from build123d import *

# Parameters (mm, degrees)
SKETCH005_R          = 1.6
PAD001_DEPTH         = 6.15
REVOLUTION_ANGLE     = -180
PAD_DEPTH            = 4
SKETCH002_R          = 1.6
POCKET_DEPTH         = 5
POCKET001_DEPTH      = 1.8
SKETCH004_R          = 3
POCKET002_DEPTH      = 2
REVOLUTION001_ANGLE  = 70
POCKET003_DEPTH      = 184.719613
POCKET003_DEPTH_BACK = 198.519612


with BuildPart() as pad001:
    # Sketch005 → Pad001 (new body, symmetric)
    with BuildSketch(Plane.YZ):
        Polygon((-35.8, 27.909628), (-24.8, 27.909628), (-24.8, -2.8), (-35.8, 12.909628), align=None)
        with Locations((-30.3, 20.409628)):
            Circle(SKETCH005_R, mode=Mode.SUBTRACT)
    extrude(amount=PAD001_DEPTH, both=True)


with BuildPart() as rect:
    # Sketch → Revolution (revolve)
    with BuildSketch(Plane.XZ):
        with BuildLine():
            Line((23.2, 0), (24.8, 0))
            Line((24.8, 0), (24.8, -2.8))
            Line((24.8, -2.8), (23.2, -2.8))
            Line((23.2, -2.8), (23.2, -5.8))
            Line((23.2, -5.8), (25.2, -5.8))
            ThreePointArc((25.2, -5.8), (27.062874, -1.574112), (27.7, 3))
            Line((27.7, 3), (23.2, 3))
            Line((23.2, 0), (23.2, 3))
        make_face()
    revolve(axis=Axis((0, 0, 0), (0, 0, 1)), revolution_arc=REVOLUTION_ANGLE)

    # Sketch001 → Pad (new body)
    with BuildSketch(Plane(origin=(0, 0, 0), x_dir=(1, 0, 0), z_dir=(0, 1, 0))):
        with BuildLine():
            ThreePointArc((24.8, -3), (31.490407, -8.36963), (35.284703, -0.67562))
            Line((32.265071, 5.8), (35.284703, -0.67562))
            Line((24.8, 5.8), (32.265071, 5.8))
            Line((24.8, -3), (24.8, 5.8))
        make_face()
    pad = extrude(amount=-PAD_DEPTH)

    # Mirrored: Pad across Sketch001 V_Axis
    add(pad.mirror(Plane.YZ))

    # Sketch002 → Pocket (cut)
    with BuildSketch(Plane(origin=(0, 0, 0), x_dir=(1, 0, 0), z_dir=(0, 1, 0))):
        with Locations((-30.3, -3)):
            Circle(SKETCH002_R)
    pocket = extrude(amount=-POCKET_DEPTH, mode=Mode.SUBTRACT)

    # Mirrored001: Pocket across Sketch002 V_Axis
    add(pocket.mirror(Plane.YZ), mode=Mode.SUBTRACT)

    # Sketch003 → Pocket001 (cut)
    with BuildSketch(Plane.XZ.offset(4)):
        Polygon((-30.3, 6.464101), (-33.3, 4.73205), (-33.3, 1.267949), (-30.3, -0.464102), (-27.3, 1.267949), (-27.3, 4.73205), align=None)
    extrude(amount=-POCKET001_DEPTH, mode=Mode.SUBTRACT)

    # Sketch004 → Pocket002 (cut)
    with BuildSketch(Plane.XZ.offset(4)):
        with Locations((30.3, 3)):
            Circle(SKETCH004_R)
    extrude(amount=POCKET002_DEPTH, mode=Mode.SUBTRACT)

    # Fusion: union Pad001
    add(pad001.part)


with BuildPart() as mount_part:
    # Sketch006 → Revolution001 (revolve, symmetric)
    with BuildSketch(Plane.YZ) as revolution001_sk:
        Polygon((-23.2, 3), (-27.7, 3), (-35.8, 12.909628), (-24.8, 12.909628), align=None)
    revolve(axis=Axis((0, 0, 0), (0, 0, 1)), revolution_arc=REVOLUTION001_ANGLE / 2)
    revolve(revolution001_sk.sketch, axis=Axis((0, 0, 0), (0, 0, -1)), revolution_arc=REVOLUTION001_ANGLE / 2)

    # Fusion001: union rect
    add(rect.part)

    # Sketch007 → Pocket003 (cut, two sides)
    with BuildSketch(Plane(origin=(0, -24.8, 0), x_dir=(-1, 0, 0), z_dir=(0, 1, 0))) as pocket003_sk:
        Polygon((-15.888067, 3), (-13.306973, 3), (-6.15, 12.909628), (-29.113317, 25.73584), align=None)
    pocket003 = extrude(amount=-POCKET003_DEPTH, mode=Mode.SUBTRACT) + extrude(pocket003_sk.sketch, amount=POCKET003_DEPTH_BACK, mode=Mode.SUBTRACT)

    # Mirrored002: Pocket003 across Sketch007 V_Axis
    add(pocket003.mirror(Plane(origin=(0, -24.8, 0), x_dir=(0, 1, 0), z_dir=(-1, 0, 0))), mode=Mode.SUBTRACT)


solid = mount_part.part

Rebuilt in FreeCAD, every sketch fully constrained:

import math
import FreeCAD as App
import Part
import Sketcher
from FreeCAD import Vector
Q = App.Units.Quantity

doc = App.newDocument("Part")
body = doc.addObject("PartDesign::Body", "Body")

sketch1 = body.newObject("Sketcher::SketchObject", "Sketch")
sketch1.AttachmentSupport = (doc.getObject("YZ_Plane"), [""])
sketch1.MapMode = "FlatFace"
sketch1.addGeometry([
    Part.LineSegment(Vector(-24.8, 27.9, 0), Vector(-35.8, 27.9, 0)),
    Part.LineSegment(Vector(-35.8, 27.9, 0), Vector(-35.8, 12.9, 0)),
    Part.LineSegment(Vector(-35.8, 12.9, 0), Vector(-24.8, -2.8, 0)),
    Part.LineSegment(Vector(-24.8, -2.8, 0), Vector(-24.8, 27.9, 0)),
    Part.Circle(Vector(-30.3, 20.4, 0), Vector(0, 0, 1), 1.6),
], False)
sketch1.addConstraint([
    Sketcher.Constraint("Coincident", 0, 2, 1, 1),
    Sketcher.Constraint("Coincident", 1, 2, 2, 1),
    Sketcher.Constraint("Coincident", 2, 2, 3, 1),
    Sketcher.Constraint("Coincident", 3, 2, 0, 1),
    Sketcher.Constraint("Horizontal", 0),
    Sketcher.Constraint("Vertical", 1),
    Sketcher.Constraint("Vertical", 3),
    Sketcher.Constraint("Diameter", 4, 3.2),
    Sketcher.Constraint("DistanceX", 0, 2, 0, 1, 11.0),
    Sketcher.Constraint("DistanceY", 1, 2, 1, 1, 15.0),
    Sketcher.Constraint("Angle", 2, Q("-55 deg")),
    Sketcher.Constraint("DistanceX", 4, 3, -1, 1, 30.3),
    Sketcher.Constraint("DistanceX", 0, 2, -1, 1, 35.8),
    Sketcher.Constraint("DistanceY", 2, 2, -1, 1, 2.8),
    Sketcher.Constraint("DistanceY", 4, 3, 0, 2, 7.5),
])
pad1 = body.newObject("PartDesign::Pad", "Pad")
pad1.Profile = sketch1
pad1.Length = 12.3
pad1.Midplane = True
body2 = doc.addObject("PartDesign::Body", "Body001")

sketch2 = body2.newObject("Sketcher::SketchObject", "Sketch001")
sketch2.AttachmentSupport = (doc.getObject("XZ_Plane001"), [""])
sketch2.MapMode = "FlatFace"
sketch2.addGeometry([
    Part.LineSegment(Vector(23.2, 0, 0), Vector(24.8, 0, 0)),
    Part.LineSegment(Vector(24.8, 0, 0), Vector(24.8, -2.8, 0)),
    Part.LineSegment(Vector(24.8, -2.8, 0), Vector(23.2, -2.8, 0)),
    Part.LineSegment(Vector(23.2, -2.8, 0), Vector(23.2, -5.8, 0)),
    Part.LineSegment(Vector(23.2, -5.8, 0), Vector(25.2, -5.8, 0)),
    Part.ArcOfCircle(Part.Circle(Vector(11, 3, 0), Vector(0, 0, 1), 16.7), math.radians(-32), math.radians(0)),
    Part.LineSegment(Vector(27.7, 3, 0), Vector(23.2, 3, 0)),
    Part.LineSegment(Vector(23.2, 3, 0), Vector(23.2, 0, 0)),
], False)
sketch2.addConstraint([
    Sketcher.Constraint("Coincident", 0, 2, 1, 1),
    Sketcher.Constraint("Coincident", 1, 2, 2, 1),
    Sketcher.Constraint("Coincident", 2, 2, 3, 1),
    Sketcher.Constraint("Coincident", 3, 2, 4, 1),
    Sketcher.Constraint("Coincident", 4, 2, 5, 1),
    Sketcher.Constraint("Coincident", 5, 2, 6, 1),
    Sketcher.Constraint("Coincident", 6, 2, 7, 1),
    Sketcher.Constraint("Coincident", 7, 2, 0, 1),
    Sketcher.Constraint("Horizontal", 0),
    Sketcher.Constraint("Vertical", 1),
    Sketcher.Constraint("Horizontal", 2),
    Sketcher.Constraint("Vertical", 3),
    Sketcher.Constraint("Horizontal", 4),
    Sketcher.Constraint("Horizontal", 6),
    Sketcher.Constraint("Vertical", 7),
    Sketcher.Constraint("PointOnObject", 0, 2, -1),
    Sketcher.Constraint("Vertical", 3, 2, 6, 2),
    Sketcher.Constraint("Equal", 3, 7),
    Sketcher.Constraint("DistanceX", 4, 1, 4, 2, 2.0),
    Sketcher.Constraint("DistanceY", 3, 2, 3, 1, 3.0),
    Sketcher.Constraint("DistanceX", 0, 1, 0, 2, 1.6),
    Sketcher.Constraint("DistanceX", 6, 2, 6, 1, 4.5),
    Sketcher.Constraint("DistanceY", 1, 2, 1, 1, 2.8),
    Sketcher.Constraint("DistanceY", -1, 1, 5, 3, 3.0),
    Sketcher.Constraint("DistanceX", -1, 1, 0, 2, 24.8),
])
revolution = body2.newObject("PartDesign::Revolution", "Revolution")
revolution.Profile = sketch2
revolution.ReferenceAxis = (sketch2, ["V_Axis"])
revolution.Angle = 180
revolution.Reversed = True

sketch3 = body2.newObject("Sketcher::SketchObject", "Sketch002")
sketch3.AttachmentSupport = (doc.getObject("XZ_Plane001"), [""])
sketch3.MapMode = "FlatFace"
sketch3.addGeometry([
    Part.ArcOfCircle(Part.Circle(Vector(30, 3, 0), Vector(0, 0, 1), 6), math.radians(-25), math.radians(180)),
    Part.LineSegment(Vector(35, 1, 0), Vector(32, -6, 0)),
    Part.LineSegment(Vector(32, -6, 0), Vector(25, -6, 0)),
    Part.LineSegment(Vector(25, -6, 0), Vector(25, 3, 0)),
], False)
sketch3.addConstraint([
    Sketcher.Constraint("Coincident", 0, 1, 1, 1),
    Sketcher.Constraint("Coincident", 1, 2, 2, 1),
    Sketcher.Constraint("Coincident", 2, 2, 3, 1),
    Sketcher.Constraint("Tangent", 3, 2, 0, 2),
    Sketcher.Constraint("Horizontal", 2),
    Sketcher.Constraint("Vertical", 3),
    Sketcher.Constraint("Radius", 0, 5.5),
    Sketcher.Constraint("Angle", 1, Q("-115.000006 deg")),
    Sketcher.Constraint("DistanceY", 3, 1, 3, 2, 8.8),
    Sketcher.Constraint("DistanceY", -1, 1, 0, 3, 2.999999),
    Sketcher.Constraint("DistanceX", -1, 1, 0, 3, 30.3),
    Sketcher.Constraint("DistanceY", -1, 1, 0, 1, 0.67562),
])
pad2 = body2.newObject("PartDesign::Pad", "Pad001")
pad2.Profile = sketch3
pad2.Length = 4
doc.recompute()

mirrored = body2.newObject("PartDesign::Mirrored", "Mirrored")
mirrored.Originals = [pad2]
mirrored.MirrorPlane = (doc.getObject("YZ_Plane001"), [""])
body2.Tip = mirrored

sketch4 = body2.newObject("Sketcher::SketchObject", "Sketch003")
sketch4.AttachmentSupport = (doc.getObject("XZ_Plane001"), [""])
sketch4.MapMode = "FlatFace"
sketch4.addGeometry(Part.Circle(Vector(-30.3, 3, 0), Vector(0, 0, 1), 1.6), False)
sketch4.addConstraint([
    Sketcher.Constraint("Diameter", 0, 3.2),
    Sketcher.Constraint("DistanceY", -1, 1, 0, 3, 3.0),
    Sketcher.Constraint("DistanceX", 0, 3, -1, 1, 30.3),
])
pocket1 = body2.newObject("PartDesign::Pocket", "Pocket")
pocket1.Profile = sketch4
pocket1.Length = 5
pocket1.Reversed = True
doc.recompute()

mirrored2 = body2.newObject("PartDesign::Mirrored", "Mirrored001")
mirrored2.Originals = [pocket1]
mirrored2.MirrorPlane = (doc.getObject("YZ_Plane001"), [""])
body2.Tip = mirrored2

sketch5 = body2.newObject("Sketcher::SketchObject", "Sketch004")
sketch5.AttachmentSupport = (doc.getObject("XZ_Plane001"), [""])
sketch5.MapMode = "FlatFace"
sketch5.AttachmentOffset = App.Placement(Vector(0, 0, 4), App.Rotation())
sketch5.addGeometry([
    Part.LineSegment(Vector(-30.3, 6.5, 0), Vector(-33.3, 4.7, 0)),
    Part.LineSegment(Vector(-33.3, 4.7, 0), Vector(-33.3, 1.3, 0)),
    Part.LineSegment(Vector(-33.3, 1.3, 0), Vector(-30.3, -0.5, 0)),
    Part.LineSegment(Vector(-30.3, -0.5, 0), Vector(-27.3, 1.3, 0)),
    Part.LineSegment(Vector(-27.3, 1.3, 0), Vector(-27.3, 4.7, 0)),
    Part.LineSegment(Vector(-27.3, 4.7, 0), Vector(-30.3, 6.5, 0)),
], False)
sketch5.addConstraint([
    Sketcher.Constraint("Coincident", 0, 2, 1, 1),
    Sketcher.Constraint("Coincident", 1, 2, 2, 1),
    Sketcher.Constraint("Coincident", 2, 2, 3, 1),
    Sketcher.Constraint("Coincident", 3, 2, 4, 1),
    Sketcher.Constraint("Coincident", 4, 2, 5, 1),
    Sketcher.Constraint("Coincident", 5, 2, 0, 1),
    Sketcher.Constraint("Vertical", 1),
    Sketcher.Constraint("Vertical", 4),
    Sketcher.Constraint("Parallel", 0, 3),
    Sketcher.Constraint("Parallel", 2, 5),
    Sketcher.Constraint("Horizontal", 1, 2, 3, 2),
    Sketcher.Constraint("Horizontal", 0, 2, 4, 2),
    Sketcher.Constraint("Vertical", 2, 2, 5, 2),
    Sketcher.Constraint("Angle", 0, Q("-149.999997 deg")),
    Sketcher.Constraint("DistanceX", 1, 2, 2, 2, 3.0),
    Sketcher.Constraint("DistanceX", 0, 2, -1, 1, 33.3),
    Sketcher.Constraint("DistanceY", 1, 2, 1, 1, 3.464101),
    Sketcher.Constraint("DistanceY", -1, 1, 5, 2, 6.464101),
])
pocket2 = body2.newObject("PartDesign::Pocket", "Pocket001")
pocket2.Profile = sketch5
pocket2.Length = 1.8

sketch6 = body2.newObject("Sketcher::SketchObject", "Sketch005")
sketch6.AttachmentSupport = (doc.getObject("XZ_Plane001"), [""])
sketch6.MapMode = "FlatFace"
sketch6.AttachmentOffset = App.Placement(Vector(0, 0, 4), App.Rotation())
sketch6.addGeometry(Part.Circle(Vector(30.3, 3, 0), Vector(0, 0, 1), 3), False)
sketch6.addConstraint([
    Sketcher.Constraint("Diameter", 0, 6.0),
    Sketcher.Constraint("DistanceY", -1, 1, 0, 3, 3.0),
    Sketcher.Constraint("DistanceX", -1, 1, 0, 3, 30.3),
])
pocket3 = body2.newObject("PartDesign::Pocket", "Pocket002")
pocket3.Profile = sketch6
pocket3.Length = 2
pocket3.Reversed = True
doc.recompute()

boolean = body2.newObject("PartDesign::Boolean", "Boolean")
boolean.Type = "Fuse"
boolean.addObjects([body])
body3 = doc.addObject("PartDesign::Body", "Body002")

sketch7 = body3.newObject("Sketcher::SketchObject", "Sketch006")
sketch7.AttachmentSupport = (doc.getObject("YZ_Plane002"), [""])
sketch7.MapMode = "FlatFace"
sketch7.addGeometry([
    Part.LineSegment(Vector(-27.7, 3, 0), Vector(-23.2, 3, 0)),
    Part.LineSegment(Vector(-23.2, 3, 0), Vector(-24.8, 12.9, 0)),
    Part.LineSegment(Vector(-24.8, 12.9, 0), Vector(-35.8, 12.9, 0)),
    Part.LineSegment(Vector(-35.8, 12.9, 0), Vector(-27.7, 3, 0)),
], False)
sketch7.addConstraint([
    Sketcher.Constraint("Coincident", 0, 2, 1, 1),
    Sketcher.Constraint("Coincident", 1, 2, 2, 1),
    Sketcher.Constraint("Coincident", 2, 2, 3, 1),
    Sketcher.Constraint("Coincident", 3, 2, 0, 1),
    Sketcher.Constraint("Horizontal", 0),
    Sketcher.Constraint("Horizontal", 2),
    Sketcher.Constraint("DistanceX", 2, 2, 2, 1, 11.0),
    Sketcher.Constraint("DistanceX", 0, 1, 0, 2, 4.5),
    Sketcher.Constraint("DistanceY", -1, 1, 0, 2, 3.0),
    Sketcher.Constraint("DistanceX", 0, 2, -1, 1, 23.2),
    Sketcher.Constraint("DistanceX", 1, 2, -1, 1, 24.8),
    Sketcher.Constraint("Distance", 1, 10.037964),
])
revolution2 = body3.newObject("PartDesign::Revolution", "Revolution001")
revolution2.Profile = sketch7
revolution2.ReferenceAxis = (sketch7, ["V_Axis"])
revolution2.Angle = 35

sketch8 = body3.newObject("Sketcher::SketchObject", "Sketch007")
sketch8.AttachmentSupport = (doc.getObject("YZ_Plane002"), [""])
sketch8.MapMode = "FlatFace"
sketch8.addGeometry([
    Part.LineSegment(Vector(-27.7, 3, 0), Vector(-23.2, 3, 0)),
    Part.LineSegment(Vector(-23.2, 3, 0), Vector(-24.8, 12.9, 0)),
    Part.LineSegment(Vector(-24.8, 12.9, 0), Vector(-35.8, 12.9, 0)),
    Part.LineSegment(Vector(-35.8, 12.9, 0), Vector(-27.7, 3, 0)),
], False)
sketch8.addConstraint([
    Sketcher.Constraint("Coincident", 0, 2, 1, 1),
    Sketcher.Constraint("Coincident", 1, 2, 2, 1),
    Sketcher.Constraint("Coincident", 2, 2, 3, 1),
    Sketcher.Constraint("Coincident", 3, 2, 0, 1),
    Sketcher.Constraint("Horizontal", 0),
    Sketcher.Constraint("Horizontal", 2),
    Sketcher.Constraint("DistanceX", 2, 2, 2, 1, 11.0),
    Sketcher.Constraint("DistanceX", 0, 1, 0, 2, 4.5),
    Sketcher.Constraint("DistanceY", -1, 1, 0, 2, 3.0),
    Sketcher.Constraint("DistanceX", 0, 2, -1, 1, 23.2),
    Sketcher.Constraint("DistanceX", 1, 2, -1, 1, 24.8),
    Sketcher.Constraint("Distance", 1, 10.037964),
])
revolution3 = body3.newObject("PartDesign::Revolution", "Revolution002")
revolution3.Profile = sketch8
revolution3.ReferenceAxis = (sketch8, ["V_Axis"])
revolution3.Angle = 35
revolution3.Reversed = True
doc.recompute()

boolean2 = body3.newObject("PartDesign::Boolean", "Boolean001")
boolean2.Type = "Fuse"
boolean2.addObjects([body2])

sketch9 = body3.newObject("Sketcher::SketchObject", "Sketch008")
sketch9.AttachmentSupport = (doc.getObject("XZ_Plane002"), [""])
sketch9.MapMode = "FlatFace"
sketch9.AttachmentOffset = App.Placement(Vector(0, 0, 24.8), App.Rotation())
sketch9.addGeometry([
    Part.LineSegment(Vector(15.9, 3, 0), Vector(13.3, 3, 0)),
    Part.LineSegment(Vector(13.3, 3, 0), Vector(6.2, 12.9, 0)),
    Part.LineSegment(Vector(6.2, 12.9, 0), Vector(29.1, 25.7, 0)),
    Part.LineSegment(Vector(29.1, 25.7, 0), Vector(15.9, 3, 0)),
], False)
sketch9.addConstraint([
    Sketcher.Constraint("Coincident", 0, 2, 1, 1),
    Sketcher.Constraint("Coincident", 1, 2, 2, 1),
    Sketcher.Constraint("Coincident", 2, 2, 3, 1),
    Sketcher.Constraint("Coincident", 3, 2, 0, 1),
    Sketcher.Constraint("Horizontal", 0),
    Sketcher.Constraint("Equal", 2, 3),
    Sketcher.Constraint("DistanceY", -1, 1, 0, 2, 3.0),
    Sketcher.Constraint("DistanceX", -1, 1, 1, 2, 6.15),
    Sketcher.Constraint("Distance", 1, 12.22387),
    Sketcher.Constraint("Distance", 2, 26.302579),
    Sketcher.Constraint("DistanceX", 0, 2, 0, 1, 2.581094),
    Sketcher.Constraint("DistanceY", -1, 1, 2, 2, 25.73584),
])
pocket4 = body3.newObject("PartDesign::Pocket", "Pocket003")
pocket4.Profile = sketch9
pocket4.Type = "ThroughAll"
pocket4.Midplane = True
doc.recompute()

mirrored3 = body3.newObject("PartDesign::Mirrored", "Mirrored002")
mirrored3.Originals = [pocket4]
mirrored3.MirrorPlane = (doc.getObject("YZ_Plane002"), [""])
body3.Tip = mirrored3

doc.recompute()
